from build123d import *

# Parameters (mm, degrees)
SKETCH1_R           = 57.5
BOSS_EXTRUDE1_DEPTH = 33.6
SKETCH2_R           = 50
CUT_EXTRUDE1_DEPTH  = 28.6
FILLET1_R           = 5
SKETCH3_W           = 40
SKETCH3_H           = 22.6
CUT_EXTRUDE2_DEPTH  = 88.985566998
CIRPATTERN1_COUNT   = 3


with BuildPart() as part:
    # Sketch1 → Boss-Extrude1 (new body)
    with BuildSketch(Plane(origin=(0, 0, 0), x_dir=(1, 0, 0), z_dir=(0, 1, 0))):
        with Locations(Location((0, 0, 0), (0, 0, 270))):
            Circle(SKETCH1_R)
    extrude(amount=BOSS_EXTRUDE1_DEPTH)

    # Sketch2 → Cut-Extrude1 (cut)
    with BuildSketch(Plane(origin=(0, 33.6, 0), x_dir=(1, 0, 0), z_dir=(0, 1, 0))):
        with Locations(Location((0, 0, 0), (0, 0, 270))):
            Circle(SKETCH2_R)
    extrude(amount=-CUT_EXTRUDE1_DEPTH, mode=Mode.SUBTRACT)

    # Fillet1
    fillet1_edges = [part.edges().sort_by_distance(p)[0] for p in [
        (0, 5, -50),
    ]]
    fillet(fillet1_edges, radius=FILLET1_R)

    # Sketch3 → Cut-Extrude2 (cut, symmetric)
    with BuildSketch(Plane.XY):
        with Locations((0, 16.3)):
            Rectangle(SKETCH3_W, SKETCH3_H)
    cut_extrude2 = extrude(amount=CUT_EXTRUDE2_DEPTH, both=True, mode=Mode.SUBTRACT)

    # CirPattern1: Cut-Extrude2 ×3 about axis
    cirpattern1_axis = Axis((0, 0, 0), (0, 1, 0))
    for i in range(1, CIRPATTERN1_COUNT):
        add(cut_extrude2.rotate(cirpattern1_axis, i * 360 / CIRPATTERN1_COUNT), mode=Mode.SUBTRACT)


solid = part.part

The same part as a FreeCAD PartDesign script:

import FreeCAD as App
import Part
import Sketcher

V = App.Vector


def edges_at(feature, points):
    """Names of the edges that pass closest to the given points."""
    edges = feature.Shape.Edges
    near = lambda p: min(range(len(edges)), key=lambda i: edges[i].distToShape(Part.Vertex(*p))[0])
    return sorted({f"Edge{near(p) + 1}" for p in points})

doc = App.newDocument("Part")
body = doc.addObject("PartDesign::Body", "Body")

# Sketch on XZ plane
sketch1 = body.newObject("Sketcher::SketchObject", "Sketch")
sketch1.AttachmentSupport = (doc.getObject("XZ_Plane"), [""])
sketch1.MapMode = "FlatFace"
sketch1.addGeometry(Part.Circle(V(0, 0, 0), V(0, 0, 1), 58), False)
sketch1.addConstraint(Sketcher.Constraint("Coincident", 0, 3, -1, 1))
sketch1.addConstraint(Sketcher.Constraint("Diameter", 0, 115.0))
pad1 = body.newObject("PartDesign::Pad", "Pad")
pad1.Profile = sketch1
pad1.Length = 33.6
pad1.Reversed = True

# Sketch on XZ plane
sketch2 = body.newObject("Sketcher::SketchObject", "Sketch001")
sketch2.AttachmentSupport = (doc.getObject("XZ_Plane"), [""])
sketch2.MapMode = "FlatFace"
sketch2.AttachmentOffset = App.Placement(V(0, 0, -33.6), App.Rotation())
sketch2.addGeometry(Part.Circle(V(0, 0, 0), V(0, 0, 1), 50), False)
sketch2.addConstraint(Sketcher.Constraint("Coincident", 0, 3, -1, 1))
sketch2.addConstraint(Sketcher.Constraint("Diameter", 0, 100.0))
pocket1 = body.newObject("PartDesign::Pocket", "Pocket")
pocket1.Profile = sketch2
pocket1.Length = 28.6
pocket1.Reversed = True
doc.recompute()

fillet = body.newObject("PartDesign::Fillet", "Fillet")
fillet.Base = (pocket1, edges_at(pocket1, [(0, 5, -50)]))
fillet.Radius = 5

# Sketch on XY plane
sketch3 = body.newObject("Sketcher::SketchObject", "Sketch002")
sketch3.AttachmentSupport = (doc.getObject("XY_Plane"), [""])
sketch3.MapMode = "FlatFace"
sketch3.addGeometry(Part.LineSegment(V(-20, 28, 0), V(-20, 5, 0)), False)
sketch3.addGeometry(Part.LineSegment(V(-20, 5, 0), V(20, 5, 0)), False)
sketch3.addGeometry(Part.LineSegment(V(20, 5, 0), V(20, 28, 0)), False)
sketch3.addGeometry(Part.LineSegment(V(20, 28, 0), V(-20, 28, 0)), False)
sketch3.addConstraint(Sketcher.Constraint("Coincident", 0, 2, 1, 1))
sketch3.addConstraint(Sketcher.Constraint("Coincident", 1, 2, 2, 1))
sketch3.addConstraint(Sketcher.Constraint("Coincident", 2, 2, 3, 1))
sketch3.addConstraint(Sketcher.Constraint("Coincident", 3, 2, 0, 1))
sketch3.addConstraint(Sketcher.Constraint("Vertical", 0))
sketch3.addConstraint(Sketcher.Constraint("Horizontal", 1))
sketch3.addConstraint(Sketcher.Constraint("Vertical", 2))
sketch3.addConstraint(Sketcher.Constraint("Horizontal", 3))
sketch3.addConstraint(Sketcher.Constraint("DistanceX", 1, 1, 1, 2, 40.0))
sketch3.addConstraint(Sketcher.Constraint("DistanceY", 0, 2, 0, 1, 22.6))
sketch3.addConstraint(Sketcher.Constraint("DistanceX", 0, 2, -1, 1, 20.0))
sketch3.addConstraint(Sketcher.Constraint("DistanceY", -1, 1, 0, 2, 5.0))
pocket2 = body.newObject("PartDesign::Pocket", "Pocket001")
pocket2.Profile = sketch3
pocket2.Length = 177.971134
pocket2.Midplane = True
doc.recompute()

polarpattern = body.newObject("PartDesign::PolarPattern", "PolarPattern")
polarpattern.Originals = [pocket2]
polarpattern.Axis = (doc.getObject("Y_Axis"), [""])
polarpattern.Angle = 360
polarpattern.Occurrences = 3
body.Tip = polarpattern

doc.recompute()
